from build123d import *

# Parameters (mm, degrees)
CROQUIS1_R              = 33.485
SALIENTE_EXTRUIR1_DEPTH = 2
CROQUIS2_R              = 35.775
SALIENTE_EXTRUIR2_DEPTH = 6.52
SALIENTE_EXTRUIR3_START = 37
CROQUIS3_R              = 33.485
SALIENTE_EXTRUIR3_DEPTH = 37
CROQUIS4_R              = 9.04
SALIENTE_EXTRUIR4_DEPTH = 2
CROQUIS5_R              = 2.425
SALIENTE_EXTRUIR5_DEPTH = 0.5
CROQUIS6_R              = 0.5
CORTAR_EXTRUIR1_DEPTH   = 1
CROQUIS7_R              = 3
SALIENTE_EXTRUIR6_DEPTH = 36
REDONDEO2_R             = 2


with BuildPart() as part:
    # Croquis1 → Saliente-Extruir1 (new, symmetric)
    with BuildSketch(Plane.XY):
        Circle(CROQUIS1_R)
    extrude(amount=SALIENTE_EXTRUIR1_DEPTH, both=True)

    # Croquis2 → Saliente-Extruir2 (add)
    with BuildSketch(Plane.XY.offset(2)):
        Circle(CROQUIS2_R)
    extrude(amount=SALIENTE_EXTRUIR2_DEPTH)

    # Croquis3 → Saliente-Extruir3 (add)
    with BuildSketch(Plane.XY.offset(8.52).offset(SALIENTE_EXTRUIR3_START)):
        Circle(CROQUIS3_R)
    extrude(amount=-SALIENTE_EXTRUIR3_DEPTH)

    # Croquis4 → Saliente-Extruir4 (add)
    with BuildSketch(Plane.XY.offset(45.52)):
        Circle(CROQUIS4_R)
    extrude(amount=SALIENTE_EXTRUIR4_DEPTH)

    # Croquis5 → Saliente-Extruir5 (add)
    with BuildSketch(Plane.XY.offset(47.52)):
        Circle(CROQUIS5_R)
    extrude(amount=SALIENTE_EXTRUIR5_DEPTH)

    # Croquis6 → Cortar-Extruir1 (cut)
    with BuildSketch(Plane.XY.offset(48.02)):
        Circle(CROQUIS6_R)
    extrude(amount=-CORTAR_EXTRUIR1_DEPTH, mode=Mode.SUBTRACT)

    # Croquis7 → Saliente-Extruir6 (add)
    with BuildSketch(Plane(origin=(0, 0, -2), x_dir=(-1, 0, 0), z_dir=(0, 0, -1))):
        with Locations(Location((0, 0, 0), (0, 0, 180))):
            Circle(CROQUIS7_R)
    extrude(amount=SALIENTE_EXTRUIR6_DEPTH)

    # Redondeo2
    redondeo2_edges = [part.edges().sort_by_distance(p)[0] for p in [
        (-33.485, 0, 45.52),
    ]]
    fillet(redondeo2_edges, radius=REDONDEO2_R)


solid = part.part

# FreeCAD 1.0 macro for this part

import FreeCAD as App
import Part
import Sketcher


def edges_at(feature, points):
    """Names of the edges that pass closest to the given points."""
    edges = feature.Shape.Edges
    near = lambda p: min(range(len(edges)), key=lambda i: edges[i].distToShape(Part.Vertex(*p))[0])
    return sorted({f"Edge{near(p) + 1}" for p in points})

doc = App.newDocument("Part")
body = doc.addObject("PartDesign::Body", "Body")

# Sketch on XY plane
sketch1 = body.newObject("Sketcher::SketchObject", "Sketch")
sketch1.AttachmentSupport = (doc.getObject("XY_Plane"), [""])
sketch1.MapMode = "FlatFace"
sketch1.addGeometry(Part.Circle(App.Vector(0, 0, 0), App.Vector(0, 0, 1), 33), False)
sketch1.addConstraint([
    Sketcher.Constraint("Coincident", 0, 3, -1, 1),
    Sketcher.Constraint("Diameter", 0, 66.97),
])
pad1 = body.newObject("PartDesign::Pad", "Pad")
pad1.Profile = sketch1
pad1.Length = 4
pad1.Midplane = True

# Sketch on XY plane
sketch2 = body.newObject("Sketcher::SketchObject", "Sketch001")
sketch2.AttachmentSupport = (doc.getObject("XY_Plane"), [""])
sketch2.MapMode = "FlatFace"
sketch2.AttachmentOffset = App.Placement(App.Vector(0, 0, 2), App.Rotation())
sketch2.addGeometry(Part.Circle(App.Vector(0, 0, 0), App.Vector(0, 0, 1), 36), False)
sketch2.addConstraint([
    Sketcher.Constraint("Coincident", 0, 3, -1, 1),
    Sketcher.Constraint("Diameter", 0, 71.55),
])
pad2 = body.newObject("PartDesign::Pad", "Pad001")
pad2.Profile = sketch2
pad2.Length = 6.52

# Sketch on XY plane
sketch3 = body.newObject("Sketcher::SketchObject", "Sketch002")
sketch3.AttachmentSupport = (doc.getObject("XY_Plane"), [""])
sketch3.MapMode = "FlatFace"
sketch3.AttachmentOffset = App.Placement(App.Vector(0, 0, 45.52), App.Rotation())
sketch3.addGeometry(Part.Circle(App.Vector(0, 0, 0), App.Vector(0, 0, 1), 33), False)
sketch3.addConstraint([
    Sketcher.Constraint("Coincident", 0, 3, -1, 1),
    Sketcher.Constraint("Diameter", 0, 66.97),
])
pad3 = body.newObject("PartDesign::Pad", "Pad002")
pad3.Profile = sketch3
pad3.Length = 37
pad3.Reversed = True

# Sketch on XY plane
sketch4 = body.newObject("Sketcher::SketchObject", "Sketch003")
sketch4.AttachmentSupport = (doc.getObject("XY_Plane"), [""])
sketch4.MapMode = "FlatFace"
sketch4.AttachmentOffset = App.Placement(App.Vector(0, 0, 45.52), App.Rotation())
sketch4.addGeometry(Part.Circle(App.Vector(0, 0, 0), App.Vector(0, 0, 1), 9), False)
sketch4.addConstraint([
    Sketcher.Constraint("Coincident", 0, 3, -1, 1),
    Sketcher.Constraint("Diameter", 0, 18.08),
])
pad4 = body.newObject("PartDesign::Pad", "Pad003")
pad4.Profile = sketch4
pad4.Length = 2

# Sketch on XY plane
sketch5 = body.newObject("Sketcher::SketchObject", "Sketch004")
sketch5.AttachmentSupport = (doc.getObject("XY_Plane"), [""])
sketch5.MapMode = "FlatFace"
sketch5.AttachmentOffset = App.Placement(App.Vector(0, 0, 47.52), App.Rotation())
sketch5.addGeometry(Part.Circle(App.Vector(0, 0, 0), App.Vector(0, 0, 1), 2.4), False)
sketch5.addConstraint([
    Sketcher.Constraint("Coincident", 0, 3, -1, 1),
    Sketcher.Constraint("Diameter", 0, 4.85),
])
pad5 = body.newObject("PartDesign::Pad", "Pad004")
pad5.Profile = sketch5
pad5.Length = 0.5

# Sketch on XY plane
sketch6 = body.newObject("Sketcher::SketchObject", "Sketch005")
sketch6.AttachmentSupport = (doc.getObject("XY_Plane"), [""])
sketch6.MapMode = "FlatFace"
sketch6.AttachmentOffset = App.Placement(App.Vector(0, 0, 48.02), App.Rotation())
sketch6.addGeometry(Part.Circle(App.Vector(0, 0, 0), App.Vector(0, 0, 1), 0.5), False)
sketch6.addConstraint([
    Sketcher.Constraint("Coincident", 0, 3, -1, 1),
    Sketcher.Constraint("Diameter", 0, 1.0),
])
pocket1 = body.newObject("PartDesign::Pocket", "Pocket")
pocket1.Profile = sketch6
pocket1.Length = 1

# Sketch on XY plane
sketch7 = body.newObject("Sketcher::SketchObject", "Sketch006")
sketch7.AttachmentSupport = (doc.getObject("XY_Plane"), [""])
sketch7.MapMode = "FlatFace"
sketch7.AttachmentOffset = App.Placement(App.Vector(0, 0, -2), App.Rotation())
sketch7.addGeometry(Part.Circle(App.Vector(0, 0, 0), App.Vector(0, 0, 1), 3), False)
sketch7.addConstraint([
    Sketcher.Constraint("Coincident", 0, 3, -1, 1),
    Sketcher.Constraint("Diameter", 0, 6.0),
])
pad6 = body.newObject("PartDesign::Pad", "Pad005")
pad6.Profile = sketch7
pad6.Length = 36
pad6.Reversed = True
doc.recompute()

fillet = body.newObject("PartDesign::Fillet", "Fillet")
fillet.Base = (pad6, edges_at(pad6, [(-33.485, 0, 45.52)]))
fillet.Radius = 2

doc.recompute()
